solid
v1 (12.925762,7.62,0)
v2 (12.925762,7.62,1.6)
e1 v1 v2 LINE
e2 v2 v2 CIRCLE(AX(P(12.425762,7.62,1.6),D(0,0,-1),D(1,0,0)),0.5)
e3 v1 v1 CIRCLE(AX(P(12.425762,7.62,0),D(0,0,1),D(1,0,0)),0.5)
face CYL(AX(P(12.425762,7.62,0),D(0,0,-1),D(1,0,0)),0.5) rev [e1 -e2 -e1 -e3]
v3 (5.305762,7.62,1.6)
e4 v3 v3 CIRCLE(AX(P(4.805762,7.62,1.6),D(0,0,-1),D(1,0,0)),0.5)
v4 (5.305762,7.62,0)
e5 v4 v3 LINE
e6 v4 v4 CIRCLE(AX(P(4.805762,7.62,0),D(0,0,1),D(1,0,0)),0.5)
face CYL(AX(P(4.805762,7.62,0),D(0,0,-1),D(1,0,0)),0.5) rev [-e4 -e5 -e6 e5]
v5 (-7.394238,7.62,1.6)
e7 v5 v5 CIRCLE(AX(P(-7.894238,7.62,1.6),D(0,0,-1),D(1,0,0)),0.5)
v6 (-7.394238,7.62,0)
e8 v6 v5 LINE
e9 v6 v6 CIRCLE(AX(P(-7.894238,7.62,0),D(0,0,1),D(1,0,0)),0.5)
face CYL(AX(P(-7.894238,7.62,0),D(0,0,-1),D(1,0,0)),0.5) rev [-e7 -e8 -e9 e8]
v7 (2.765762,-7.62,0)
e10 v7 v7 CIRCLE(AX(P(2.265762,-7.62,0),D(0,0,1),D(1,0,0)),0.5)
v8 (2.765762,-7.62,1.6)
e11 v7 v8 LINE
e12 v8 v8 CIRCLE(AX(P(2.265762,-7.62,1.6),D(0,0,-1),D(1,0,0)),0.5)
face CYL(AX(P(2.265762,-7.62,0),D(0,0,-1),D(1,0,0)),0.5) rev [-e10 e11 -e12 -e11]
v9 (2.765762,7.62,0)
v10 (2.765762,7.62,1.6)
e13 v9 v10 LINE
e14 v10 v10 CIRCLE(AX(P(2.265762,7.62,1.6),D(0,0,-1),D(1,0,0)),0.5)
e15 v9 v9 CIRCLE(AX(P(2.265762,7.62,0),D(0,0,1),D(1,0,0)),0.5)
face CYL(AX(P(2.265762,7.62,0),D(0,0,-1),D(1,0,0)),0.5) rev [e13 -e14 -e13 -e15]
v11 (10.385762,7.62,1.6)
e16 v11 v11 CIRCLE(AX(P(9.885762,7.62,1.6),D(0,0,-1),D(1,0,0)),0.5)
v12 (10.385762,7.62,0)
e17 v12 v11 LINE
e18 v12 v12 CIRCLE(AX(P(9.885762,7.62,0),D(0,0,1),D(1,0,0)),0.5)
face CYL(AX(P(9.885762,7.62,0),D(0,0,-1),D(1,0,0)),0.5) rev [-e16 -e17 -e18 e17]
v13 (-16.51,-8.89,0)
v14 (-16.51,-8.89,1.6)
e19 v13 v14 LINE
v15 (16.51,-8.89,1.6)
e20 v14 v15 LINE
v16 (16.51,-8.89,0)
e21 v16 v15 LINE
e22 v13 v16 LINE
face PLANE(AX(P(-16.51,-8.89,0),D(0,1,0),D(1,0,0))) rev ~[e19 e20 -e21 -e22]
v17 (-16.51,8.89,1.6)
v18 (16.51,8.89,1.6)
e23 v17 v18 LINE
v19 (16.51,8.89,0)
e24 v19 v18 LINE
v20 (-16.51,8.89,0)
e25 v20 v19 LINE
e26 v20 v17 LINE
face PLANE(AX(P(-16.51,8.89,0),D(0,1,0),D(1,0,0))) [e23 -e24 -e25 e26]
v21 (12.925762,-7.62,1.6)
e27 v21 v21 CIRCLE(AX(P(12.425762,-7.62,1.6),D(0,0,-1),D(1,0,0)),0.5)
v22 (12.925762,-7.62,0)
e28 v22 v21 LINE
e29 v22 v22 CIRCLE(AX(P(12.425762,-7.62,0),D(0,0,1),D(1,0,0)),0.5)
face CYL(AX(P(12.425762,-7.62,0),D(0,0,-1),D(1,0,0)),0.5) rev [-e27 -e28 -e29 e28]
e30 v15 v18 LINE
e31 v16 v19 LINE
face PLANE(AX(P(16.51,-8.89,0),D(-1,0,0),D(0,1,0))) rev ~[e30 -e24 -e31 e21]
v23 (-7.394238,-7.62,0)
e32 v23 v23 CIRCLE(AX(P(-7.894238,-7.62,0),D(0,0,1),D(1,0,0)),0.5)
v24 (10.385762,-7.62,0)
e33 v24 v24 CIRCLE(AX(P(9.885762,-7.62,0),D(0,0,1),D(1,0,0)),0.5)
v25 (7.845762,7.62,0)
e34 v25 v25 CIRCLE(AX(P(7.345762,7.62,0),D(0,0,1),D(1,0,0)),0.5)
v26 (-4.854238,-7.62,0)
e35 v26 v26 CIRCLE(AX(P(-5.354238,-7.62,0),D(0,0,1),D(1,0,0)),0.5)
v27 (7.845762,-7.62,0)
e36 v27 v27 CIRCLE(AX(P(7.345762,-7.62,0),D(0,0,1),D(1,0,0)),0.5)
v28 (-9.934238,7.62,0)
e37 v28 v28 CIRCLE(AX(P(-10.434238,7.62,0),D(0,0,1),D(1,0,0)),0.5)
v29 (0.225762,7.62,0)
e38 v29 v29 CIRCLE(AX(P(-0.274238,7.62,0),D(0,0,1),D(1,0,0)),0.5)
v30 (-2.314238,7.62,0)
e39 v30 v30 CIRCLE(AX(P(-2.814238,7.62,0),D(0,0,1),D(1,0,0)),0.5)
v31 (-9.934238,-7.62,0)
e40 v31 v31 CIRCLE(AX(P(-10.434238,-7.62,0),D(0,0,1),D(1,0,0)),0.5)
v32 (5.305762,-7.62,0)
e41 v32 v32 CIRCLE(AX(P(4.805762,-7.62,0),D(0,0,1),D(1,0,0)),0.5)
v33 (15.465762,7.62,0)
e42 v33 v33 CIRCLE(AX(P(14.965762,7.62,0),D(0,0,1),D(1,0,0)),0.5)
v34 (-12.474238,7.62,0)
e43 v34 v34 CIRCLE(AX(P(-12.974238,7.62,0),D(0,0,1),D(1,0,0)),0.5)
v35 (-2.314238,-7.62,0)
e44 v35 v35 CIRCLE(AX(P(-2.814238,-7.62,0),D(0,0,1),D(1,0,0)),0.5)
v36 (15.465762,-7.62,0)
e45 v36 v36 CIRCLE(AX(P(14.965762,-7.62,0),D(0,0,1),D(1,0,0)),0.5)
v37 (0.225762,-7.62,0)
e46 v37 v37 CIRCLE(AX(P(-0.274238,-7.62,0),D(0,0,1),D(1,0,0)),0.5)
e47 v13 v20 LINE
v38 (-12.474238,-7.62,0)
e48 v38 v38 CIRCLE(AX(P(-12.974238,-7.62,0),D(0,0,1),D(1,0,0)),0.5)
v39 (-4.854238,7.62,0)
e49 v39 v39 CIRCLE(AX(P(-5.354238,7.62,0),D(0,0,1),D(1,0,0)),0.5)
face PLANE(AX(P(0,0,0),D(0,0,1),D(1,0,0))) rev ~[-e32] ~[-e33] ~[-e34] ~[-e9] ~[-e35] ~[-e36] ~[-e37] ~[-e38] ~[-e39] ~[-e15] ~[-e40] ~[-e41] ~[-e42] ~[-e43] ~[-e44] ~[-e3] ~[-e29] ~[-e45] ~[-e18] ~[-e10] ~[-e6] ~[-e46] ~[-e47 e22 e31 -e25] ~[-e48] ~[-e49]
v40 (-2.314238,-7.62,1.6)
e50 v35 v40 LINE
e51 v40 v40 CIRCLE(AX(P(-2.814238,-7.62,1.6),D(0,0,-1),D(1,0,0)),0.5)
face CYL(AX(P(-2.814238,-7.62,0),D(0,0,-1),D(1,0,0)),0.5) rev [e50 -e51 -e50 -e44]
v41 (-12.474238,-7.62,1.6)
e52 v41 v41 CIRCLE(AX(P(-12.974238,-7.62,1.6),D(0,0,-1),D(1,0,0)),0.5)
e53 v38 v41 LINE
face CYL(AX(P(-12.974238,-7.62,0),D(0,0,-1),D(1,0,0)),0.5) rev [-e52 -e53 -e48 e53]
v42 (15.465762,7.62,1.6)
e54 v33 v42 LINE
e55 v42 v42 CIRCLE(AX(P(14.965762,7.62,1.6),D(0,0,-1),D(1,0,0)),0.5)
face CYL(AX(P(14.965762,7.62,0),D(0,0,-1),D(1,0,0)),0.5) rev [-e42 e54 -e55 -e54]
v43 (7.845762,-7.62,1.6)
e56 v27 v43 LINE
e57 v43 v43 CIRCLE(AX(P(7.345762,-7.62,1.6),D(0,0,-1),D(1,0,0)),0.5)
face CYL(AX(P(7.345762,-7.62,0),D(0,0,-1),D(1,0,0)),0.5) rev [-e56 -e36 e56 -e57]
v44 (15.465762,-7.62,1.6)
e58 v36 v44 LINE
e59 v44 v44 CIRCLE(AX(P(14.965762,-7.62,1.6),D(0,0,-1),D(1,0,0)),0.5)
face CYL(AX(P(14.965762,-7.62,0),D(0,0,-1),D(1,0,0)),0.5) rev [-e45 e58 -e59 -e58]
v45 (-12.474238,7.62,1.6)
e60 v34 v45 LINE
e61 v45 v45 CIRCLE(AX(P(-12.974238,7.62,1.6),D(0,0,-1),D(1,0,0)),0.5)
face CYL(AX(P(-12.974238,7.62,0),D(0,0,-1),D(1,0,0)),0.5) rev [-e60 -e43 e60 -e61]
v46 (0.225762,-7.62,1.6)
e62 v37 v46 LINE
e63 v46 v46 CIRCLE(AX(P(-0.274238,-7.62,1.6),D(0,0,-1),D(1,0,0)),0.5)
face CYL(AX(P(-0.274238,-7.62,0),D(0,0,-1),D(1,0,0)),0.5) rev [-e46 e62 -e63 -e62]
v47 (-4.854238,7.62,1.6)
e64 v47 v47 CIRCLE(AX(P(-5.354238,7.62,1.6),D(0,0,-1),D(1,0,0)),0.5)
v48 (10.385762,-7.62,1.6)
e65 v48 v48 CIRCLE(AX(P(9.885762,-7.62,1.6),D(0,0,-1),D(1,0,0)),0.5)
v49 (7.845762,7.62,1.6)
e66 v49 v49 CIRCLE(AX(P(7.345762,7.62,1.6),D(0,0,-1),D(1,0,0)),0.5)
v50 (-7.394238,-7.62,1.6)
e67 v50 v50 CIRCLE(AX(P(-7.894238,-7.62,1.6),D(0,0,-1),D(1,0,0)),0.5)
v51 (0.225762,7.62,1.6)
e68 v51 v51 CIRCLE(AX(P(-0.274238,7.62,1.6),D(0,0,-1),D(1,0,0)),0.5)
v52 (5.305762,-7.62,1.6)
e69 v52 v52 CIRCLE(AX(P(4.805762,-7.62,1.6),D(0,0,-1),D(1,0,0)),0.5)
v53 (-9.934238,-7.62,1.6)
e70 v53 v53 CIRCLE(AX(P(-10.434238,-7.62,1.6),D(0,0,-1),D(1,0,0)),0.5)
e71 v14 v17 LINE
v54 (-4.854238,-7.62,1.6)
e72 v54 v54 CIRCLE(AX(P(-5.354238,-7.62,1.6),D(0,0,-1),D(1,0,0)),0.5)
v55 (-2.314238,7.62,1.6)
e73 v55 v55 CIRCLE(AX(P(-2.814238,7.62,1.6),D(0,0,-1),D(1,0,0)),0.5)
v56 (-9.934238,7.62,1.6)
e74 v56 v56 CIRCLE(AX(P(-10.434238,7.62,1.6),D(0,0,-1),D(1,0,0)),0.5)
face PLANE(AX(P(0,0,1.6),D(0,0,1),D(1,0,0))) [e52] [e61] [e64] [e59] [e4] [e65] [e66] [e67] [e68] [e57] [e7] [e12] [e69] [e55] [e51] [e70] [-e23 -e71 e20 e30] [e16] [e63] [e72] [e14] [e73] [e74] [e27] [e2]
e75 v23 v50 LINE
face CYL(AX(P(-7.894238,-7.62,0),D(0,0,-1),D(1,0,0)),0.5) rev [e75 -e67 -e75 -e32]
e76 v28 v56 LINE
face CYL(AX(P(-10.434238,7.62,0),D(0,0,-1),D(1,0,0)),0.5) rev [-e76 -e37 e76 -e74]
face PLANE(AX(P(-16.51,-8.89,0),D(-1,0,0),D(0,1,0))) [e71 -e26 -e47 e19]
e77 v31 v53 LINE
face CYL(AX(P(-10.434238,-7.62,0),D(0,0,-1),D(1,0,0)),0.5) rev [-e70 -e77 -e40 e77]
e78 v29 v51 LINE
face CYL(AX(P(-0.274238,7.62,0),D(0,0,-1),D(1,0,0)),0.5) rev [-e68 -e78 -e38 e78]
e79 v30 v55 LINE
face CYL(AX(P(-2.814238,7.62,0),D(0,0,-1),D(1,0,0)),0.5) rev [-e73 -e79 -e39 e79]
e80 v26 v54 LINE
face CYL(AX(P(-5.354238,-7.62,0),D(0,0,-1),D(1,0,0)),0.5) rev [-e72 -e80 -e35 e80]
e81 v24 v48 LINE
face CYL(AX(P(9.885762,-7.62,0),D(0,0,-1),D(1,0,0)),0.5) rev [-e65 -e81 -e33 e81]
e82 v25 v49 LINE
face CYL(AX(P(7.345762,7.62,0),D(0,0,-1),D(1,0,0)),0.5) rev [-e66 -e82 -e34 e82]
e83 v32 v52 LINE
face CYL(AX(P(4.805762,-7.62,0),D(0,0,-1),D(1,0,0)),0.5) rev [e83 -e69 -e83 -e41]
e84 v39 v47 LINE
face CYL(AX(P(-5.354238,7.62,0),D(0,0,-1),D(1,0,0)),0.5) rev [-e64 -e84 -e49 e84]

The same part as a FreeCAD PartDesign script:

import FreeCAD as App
import Part
import Sketcher
from FreeCAD import Vector
Q = App.Units.Quantity


def add_polygon(sketch, points):
    """Adds a closed chain of lines whose ends are joined by coincident constraints."""
    first, n = sketch.GeometryCount, len(points)
    for a, b in zip(points, points[1:] + points[:1]):
        sketch.addGeometry(Part.LineSegment(App.Vector(*a, 0), App.Vector(*b, 0)), False)
    for i in range(n):
        sketch.addConstraint(Sketcher.Constraint("Coincident", first + i, 2, first + (i + 1) % n, 1))

doc = App.newDocument("Part")
body = doc.addObject("PartDesign::Body", "Body")

sketch1 = doc.addObject("Sketcher::SketchObject", "Sketch")
body.addObject(sketch1)
sketch1.AttachmentSupport = (doc.XY_Plane, [""])
sketch1.MapMode = "FlatFace"
add_polygon(sketch1, [(-17, 9), (-17, -9), (17, -9), (17, 9)])
sketch1.addConstraint([
    Sketcher.Constraint("Vertical", 0),
    Sketcher.Constraint("Horizontal", 1),
    Sketcher.Constraint("Vertical", 2),
    Sketcher.Constraint("Horizontal", 3),
    Sketcher.Constraint("Symmetric", 0, 2, 2, 2, -1, 1),
    Sketcher.Constraint("DistanceX", 1, 1, 1, 2, Q("33.02 mm")),
    Sketcher.Constraint("DistanceY", 0, 2, 0, 1, Q("17.78 mm")),
])
pad1 = doc.addObject("PartDesign::Pad", "Pad")
body.addObject(pad1)
pad1.Profile = sketch1
pad1.Length = 1.6

sketch2 = doc.addObject("Sketcher::SketchObject", "Sketch001")
body.addObject(sketch2)
sketch2.AttachmentSupport = (doc.XY_Plane, [""])
sketch2.MapMode = "FlatFace"
sketch2.addGeometry([
    Part.Circle(Vector(-13, 7.6, 0), Vector(0, 0, 1), 0.5),
    Part.Circle(Vector(-10.4, 7.6, 0), Vector(0, 0, 1), 0.5),
    Part.Circle(Vector(-7.9, 7.6, 0), Vector(0, 0, 1), 0.5),
    Part.Circle(Vector(-5.4, 7.6, 0), Vector(0, 0, 1), 0.5),
    Part.Circle(Vector(-2.8, 7.6, 0), Vector(0, 0, 1), 0.5),
    Part.Circle(Vector(-0.3, 7.6, 0), Vector(0, 0, 1), 0.5),
    Part.Circle(Vector(2.3, 7.6, 0), Vector(0, 0, 1), 0.5),
    Part.Circle(Vector(4.8, 7.6, 0), Vector(0, 0, 1), 0.5),
    Part.Circle(Vector(7.3, 7.6, 0), Vector(0, 0, 1), 0.5),
    Part.Circle(Vector(9.9, 7.6, 0), Vector(0, 0, 1), 0.5),
    Part.Circle(Vector(12.4, 7.6, 0), Vector(0, 0, 1), 0.5),
    Part.Circle(Vector(15, 7.6, 0), Vector(0, 0, 1), 0.5),
    Part.Circle(Vector(2.3, -7.6, 0), Vector(0, 0, 1), 0.5),
    Part.Circle(Vector(4.8, -7.6, 0), Vector(0, 0, 1), 0.5),
    Part.Circle(Vector(7.3, -7.6, 0), Vector(0, 0, 1), 0.5),
    Part.Circle(Vector(9.9, -7.6, 0), Vector(0, 0, 1), 0.5),
    Part.Circle(Vector(12.4, -7.6, 0), Vector(0, 0, 1), 0.5),
    Part.Circle(Vector(-0.3, -7.6, 0), Vector(0, 0, 1), 0.5),
    Part.Circle(Vector(15, -7.6, 0), Vector(0, 0, 1), 0.5),
    Part.Circle(Vector(-2.8, -7.6, 0), Vector(0, 0, 1), 0.5),
    Part.Circle(Vector(-7.9, -7.6, 0), Vector(0, 0, 1), 0.5),
    Part.Circle(Vector(-13, -7.6, 0), Vector(0, 0, 1), 0.5),
    Part.Circle(Vector(-5.4, -7.6, 0), Vector(0, 0, 1), 0.5),
    Part.Circle(Vector(-10.4, -7.6, 0), Vector(0, 0, 1), 0.5),
], False)
sketch2.addConstraint([
    Sketcher.Constraint("Equal", 0, 1),
    Sketcher.Constraint("Equal", 1, 2),
    Sketcher.Constraint("Equal", 2, 3),
    Sketcher.Constraint("Equal", 3, 4),
    Sketcher.Constraint("Equal", 4, 5),
    Sketcher.Constraint("Equal", 5, 6),
    Sketcher.Constraint("Equal", 6, 7),
    Sketcher.Constraint("Equal", 7, 8),
    Sketcher.Constraint("Equal", 8, 9),
    Sketcher.Constraint("Equal", 9, 10),
    Sketcher.Constraint("Equal", 10, 11),
    Sketcher.Constraint("Equal", 11, 12),
    Sketcher.Constraint("Equal", 12, 13),
    Sketcher.Constraint("Equal", 13, 14),
    Sketcher.Constraint("Equal", 14, 15),
    Sketcher.Constraint("Equal", 15, 16),
    Sketcher.Constraint("Equal", 16, 17),
    Sketcher.Constraint("Equal", 17, 18),
    Sketcher.Constraint("Equal", 18, 19),
    Sketcher.Constraint("Equal", 19, 20),
    Sketcher.Constraint("Equal", 20, 21),
    Sketcher.Constraint("Equal", 21, 22),
    Sketcher.Constraint("Equal", 22, 23),
    Sketcher.Constraint("Symmetric", 6, 3, 12, 3, -1),
    Sketcher.Constraint("Symmetric", 7, 3, 13, 3, -1),
    Sketcher.Constraint("Symmetric", 8, 3, 14, 3, -1),
    Sketcher.Constraint("Symmetric", 9, 3, 15, 3, -1),
    Sketcher.Constraint("Symmetric", 10, 3, 16, 3, -1),
    Sketcher.Constraint("Symmetric", 5, 3, 17, 3, -1),
    Sketcher.Constraint("Symmetric", 11, 3, 18, 3, -1),
    Sketcher.Constraint("Symmetric", 4, 3, 19, 3, -1),
    Sketcher.Constraint("Symmetric", 2, 3, 20, 3, -1),
    Sketcher.Constraint("Symmetric", 0, 3, 21, 3, -1),
    Sketcher.Constraint("Symmetric", 3, 3, 22, 3, -1),
    Sketcher.Constraint("Symmetric", 1, 3, 23, 3, -1),
    Sketcher.Constraint("Horizontal", 0, 3, 1, 3),
    Sketcher.Constraint("Horizontal", 1, 3, 2, 3),
    Sketcher.Constraint("Horizontal", 2, 3, 3, 3),
    Sketcher.Constraint("Horizontal", 3, 3, 4, 3),
    Sketcher.Constraint("Horizontal", 4, 3, 5, 3),
    Sketcher.Constraint("Horizontal", 5, 3, 6, 3),
    Sketcher.Constraint("Horizontal", 6, 3, 7, 3),
    Sketcher.Constraint("Horizontal", 7, 3, 8, 3),
    Sketcher.Constraint("Horizontal", 8, 3, 9, 3),
    Sketcher.Constraint("Horizontal", 9, 3, 10, 3),
    Sketcher.Constraint("Horizontal", 10, 3, 11, 3),
    Sketcher.Constraint("Diameter", 0, Q("1 mm")),
    Sketcher.Constraint("DistanceX", 0, 3, 5, 3, Q("12.7 mm")),
    Sketcher.Constraint("DistanceX", 1, 3, 6, 3, Q("12.7 mm")),
    Sketcher.Constraint("DistanceX", 2, 3, 7, 3, Q("12.7 mm")),
    Sketcher.Constraint("DistanceX", 3, 3, 8, 3, Q("12.7 mm")),
    Sketcher.Constraint("DistanceX", 4, 3, 9, 3, Q("12.7 mm")),
    Sketcher.Constraint("DistanceX", 5, 3, 10, 3, Q("12.7 mm")),
    Sketcher.Constraint("DistanceX", 6, 3, 11, 3, Q("12.7 mm")),
    Sketcher.Constraint("DistanceY", -1, 1, 0, 3, Q("7.62 mm")),
    Sketcher.Constraint("DistanceX", 0, 3, 1, 3, Q("2.54 mm")),
    Sketcher.Constraint("DistanceX", 1, 3, 2, 3, Q("2.54 mm")),
    Sketcher.Constraint("DistanceX", 2, 3, 3, 3, Q("2.54 mm")),
    Sketcher.Constraint("DistanceX", 3, 3, 4, 3, Q("2.54 mm")),
    Sketcher.Constraint("DistanceX", 4, 3, -1, 1, Q("2.814238 mm")),
])
pocket1 = doc.addObject("PartDesign::Pocket", "Pocket")
body.addObject(pocket1)
pocket1.Profile = sketch2
pocket1.Length = 25
pocket1.Reversed = True

doc.recompute()
